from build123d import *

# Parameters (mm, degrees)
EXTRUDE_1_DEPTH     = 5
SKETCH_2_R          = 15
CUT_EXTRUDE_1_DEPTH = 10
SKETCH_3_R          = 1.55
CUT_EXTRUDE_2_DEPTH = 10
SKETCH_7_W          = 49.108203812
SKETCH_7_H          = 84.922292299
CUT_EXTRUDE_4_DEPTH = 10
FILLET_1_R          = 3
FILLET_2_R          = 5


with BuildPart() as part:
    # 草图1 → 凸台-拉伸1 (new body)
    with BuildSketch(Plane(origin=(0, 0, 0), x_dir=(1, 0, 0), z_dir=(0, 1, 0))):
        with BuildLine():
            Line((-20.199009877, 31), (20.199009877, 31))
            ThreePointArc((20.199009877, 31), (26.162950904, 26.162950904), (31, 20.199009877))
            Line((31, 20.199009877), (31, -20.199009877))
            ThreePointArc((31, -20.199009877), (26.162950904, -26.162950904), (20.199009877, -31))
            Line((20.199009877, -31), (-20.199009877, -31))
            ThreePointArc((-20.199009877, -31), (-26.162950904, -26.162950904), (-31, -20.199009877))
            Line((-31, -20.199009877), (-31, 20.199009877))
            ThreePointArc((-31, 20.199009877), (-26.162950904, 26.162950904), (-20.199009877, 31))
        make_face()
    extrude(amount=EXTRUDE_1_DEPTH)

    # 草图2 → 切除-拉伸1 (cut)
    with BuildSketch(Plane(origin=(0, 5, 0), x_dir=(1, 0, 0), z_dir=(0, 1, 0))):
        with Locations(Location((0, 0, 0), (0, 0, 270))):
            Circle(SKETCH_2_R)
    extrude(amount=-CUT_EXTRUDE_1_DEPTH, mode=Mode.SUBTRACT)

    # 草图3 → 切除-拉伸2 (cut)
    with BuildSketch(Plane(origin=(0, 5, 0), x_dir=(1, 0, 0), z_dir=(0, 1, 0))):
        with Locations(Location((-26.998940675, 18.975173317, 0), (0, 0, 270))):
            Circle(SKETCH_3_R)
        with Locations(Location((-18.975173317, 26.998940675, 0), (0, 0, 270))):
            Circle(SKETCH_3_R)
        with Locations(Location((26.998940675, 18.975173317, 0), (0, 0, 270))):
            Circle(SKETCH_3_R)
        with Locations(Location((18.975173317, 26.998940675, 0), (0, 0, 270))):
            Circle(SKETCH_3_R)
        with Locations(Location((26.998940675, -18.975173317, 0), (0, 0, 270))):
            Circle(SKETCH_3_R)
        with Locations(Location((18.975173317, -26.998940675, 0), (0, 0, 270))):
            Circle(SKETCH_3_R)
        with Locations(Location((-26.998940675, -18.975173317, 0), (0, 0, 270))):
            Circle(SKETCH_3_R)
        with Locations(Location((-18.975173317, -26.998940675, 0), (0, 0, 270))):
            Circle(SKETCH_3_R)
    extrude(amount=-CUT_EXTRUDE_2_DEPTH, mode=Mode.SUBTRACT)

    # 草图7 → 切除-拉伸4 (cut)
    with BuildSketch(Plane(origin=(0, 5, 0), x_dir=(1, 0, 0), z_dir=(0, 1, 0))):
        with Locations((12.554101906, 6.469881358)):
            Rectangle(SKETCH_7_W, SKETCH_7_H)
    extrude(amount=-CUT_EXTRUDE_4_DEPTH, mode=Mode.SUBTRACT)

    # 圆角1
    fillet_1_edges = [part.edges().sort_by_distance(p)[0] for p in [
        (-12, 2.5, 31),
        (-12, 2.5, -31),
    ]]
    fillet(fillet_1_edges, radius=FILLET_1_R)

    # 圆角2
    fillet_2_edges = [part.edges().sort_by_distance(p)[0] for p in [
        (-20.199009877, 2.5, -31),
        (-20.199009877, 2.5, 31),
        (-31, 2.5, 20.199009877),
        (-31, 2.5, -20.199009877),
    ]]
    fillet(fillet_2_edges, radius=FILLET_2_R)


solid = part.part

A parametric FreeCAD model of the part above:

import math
import FreeCAD as App
import Part
import Sketcher

V = App.Vector


def edges_at(feature, points):
    """Names of the edges that pass closest to the given points."""
    edges = feature.Shape.Edges
    near = lambda p: min(range(len(edges)), key=lambda i: edges[i].distToShape(Part.Vertex(*p))[0])
    return sorted({f"Edge{near(p) + 1}" for p in points})


def add_polygon(sketch, points):
    """Adds a closed chain of lines whose ends are joined by coincident constraints."""
    first, n = sketch.GeometryCount, len(points)
    for a, b in zip(points, points[1:] + points[:1]):
        sketch.addGeometry(Part.LineSegment(App.Vector(*a, 0), App.Vector(*b, 0)), False)
    for i in range(n):
        sketch.addConstraint(Sketcher.Constraint("Coincident", first + i, 2, first + (i + 1) % n, 1))

doc = App.newDocument("Part")
body = doc.addObject("PartDesign::Body", "Body")

# Sketch on XZ plane
sketch1 = doc.addObject("Sketcher::SketchObject", "Sketch")
body.addObject(sketch1)
sketch1.AttachmentSupport = (doc.XZ_Plane, [""])
sketch1.MapMode = "FlatFace"
sketch1.addGeometry(Part.LineSegment(V(20, -31, 0), V(-20, -31, 0)), False)
sketch1.addGeometry(Part.ArcOfCircle(Part.Circle(V(0, 0, 0), V(0, 0, 1), 37), math.radians(-147), math.radians(-123)), False)
sketch1.addGeometry(Part.LineSegment(V(-31, -20, 0), V(-31, 20, 0)), False)
sketch1.addGeometry(Part.ArcOfCircle(Part.Circle(V(0, 0, 0), V(0, 0, 1), 37), math.radians(123), math.radians(147)), False)
sketch1.addGeometry(Part.LineSegment(V(-20, 31, 0), V(20, 31, 0)), False)
sketch1.addGeometry(Part.ArcOfCircle(Part.Circle(V(0, 0, 0), V(0, 0, 1), 37), math.radians(33), math.radians(57)), False)
sketch1.addGeometry(Part.LineSegment(V(31, 20, 0), V(31, -20, 0)), False)
sketch1.addGeometry(Part.ArcOfCircle(Part.Circle(V(0, 0, 0), V(0, 0, 1), 37), math.radians(-57), math.radians(-33)), False)
sketch1.addConstraint(Sketcher.Constraint("Coincident", 0, 2, 1, 2))
sketch1.addConstraint(Sketcher.Constraint("Coincident", 1, 1, 2, 1))
sketch1.addConstraint(Sketcher.Constraint("Coincident", 2, 2, 3, 2))
sketch1.addConstraint(Sketcher.Constraint("Coincident", 3, 1, 4, 1))
sketch1.addConstraint(Sketcher.Constraint("Coincident", 4, 2, 5, 2))
sketch1.addConstraint(Sketcher.Constraint("Coincident", 5, 1, 6, 1))
sketch1.addConstraint(Sketcher.Constraint("Coincident", 6, 2, 7, 2))
sketch1.addConstraint(Sketcher.Constraint("Coincident", 7, 1, 0, 1))
sketch1.addConstraint(Sketcher.Constraint("Horizontal", 0))
sketch1.addConstraint(Sketcher.Constraint("Vertical", 2))
sketch1.addConstraint(Sketcher.Constraint("Horizontal", 4))
sketch1.addConstraint(Sketcher.Constraint("Vertical", 6))
sketch1.addConstraint(Sketcher.Constraint("Coincident", 1, 3, -1, 1))
sketch1.addConstraint(Sketcher.Constraint("Coincident", 3, 3, -1, 1))
sketch1.addConstraint(Sketcher.Constraint("Coincident", 5, 3, -1, 1))
sketch1.addConstraint(Sketcher.Constraint("Coincident", 7, 3, -1, 1))
sketch1.addConstraint(Sketcher.Constraint("Equal", 1, 3))
sketch1.addConstraint(Sketcher.Constraint("Equal", 3, 5))
sketch1.addConstraint(Sketcher.Constraint("Equal", 5, 7))
sketch1.addConstraint(Sketcher.Constraint("Horizontal", 2, 2, 5, 1))
sketch1.addConstraint(Sketcher.Constraint("Vertical", 0, 2, 3, 1))
sketch1.addConstraint(Sketcher.Constraint("Equal", 4, 2))
sketch1.addConstraint(Sketcher.Constraint("Radius", 1, 37.0))
sketch1.addConstraint(Sketcher.Constraint("DistanceY", 0, 2, -1, 1, 31.0))
pad1 = doc.addObject("PartDesign::Pad", "Pad")
body.addObject(pad1)
pad1.Profile = sketch1
pad1.Length = 5
pad1.Reversed = True

# Sketch on XZ plane
sketch2 = doc.addObject("Sketcher::SketchObject", "Sketch001")
body.addObject(sketch2)
sketch2.AttachmentSupport = (doc.XZ_Plane, [""])
sketch2.MapMode = "FlatFace"
sketch2.AttachmentOffset = App.Placement(V(0, 0, -5), App.Rotation())
sketch2.addGeometry(Part.Circle(V(0, 0, 0), V(0, 0, 1), 15), False)
sketch2.addConstraint(Sketcher.Constraint("Coincident", 0, 3, -1, 1))
sketch2.addConstraint(Sketcher.Constraint("Diameter", 0, 30.0))
pocket1 = doc.addObject("PartDesign::Pocket", "Pocket")
body.addObject(pocket1)
pocket1.Profile = sketch2
pocket1.Length = 10
pocket1.Reversed = True

# Sketch on XZ plane
sketch3 = doc.addObject("Sketcher::SketchObject", "Sketch002")
body.addObject(sketch3)
sketch3.AttachmentSupport = (doc.XZ_Plane, [""])
sketch3.MapMode = "FlatFace"
sketch3.AttachmentOffset = App.Placement(V(0, 0, -5), App.Rotation())
sketch3.addGeometry(Part.Circle(V(-27, -19, 0), V(0, 0, 1), 1.6), False)
sketch3.addGeometry(Part.Circle(V(-19, -27, 0), V(0, 0, 1), 1.6), False)
sketch3.addGeometry(Part.Circle(V(27, -19, 0), V(0, 0, 1), 1.6), False)
sketch3.addGeometry(Part.Circle(V(19, -27, 0), V(0, 0, 1), 1.6), False)
sketch3.addGeometry(Part.Circle(V(27, 19, 0), V(0, 0, 1), 1.6), False)
sketch3.addGeometry(Part.Circle(V(19, 27, 0), V(0, 0, 1), 1.6), False)
sketch3.addGeometry(Part.Circle(V(-27, 19, 0), V(0, 0, 1), 1.6), False)
sketch3.addGeometry(Part.Circle(V(-19, 27, 0), V(0, 0, 1), 1.6), False)
sketch3.addConstraint(Sketcher.Constraint("Equal", 0, 1))
sketch3.addConstraint(Sketcher.Constraint("Equal", 1, 2))
sketch3.addConstraint(Sketcher.Constraint("Equal", 2, 3))
sketch3.addConstraint(Sketcher.Constraint("Equal", 3, 4))
sketch3.addConstraint(Sketcher.Constraint("Equal", 4, 5))
sketch3.addConstraint(Sketcher.Constraint("Equal", 5, 6))
sketch3.addConstraint(Sketcher.Constraint("Equal", 6, 7))
sketch3.addConstraint(Sketcher.Constraint("Symmetric", 0, 3, 4, 3, -1, 1))
sketch3.addConstraint(Sketcher.Constraint("Symmetric", 1, 3, 5, 3, -1, 1))
sketch3.addConstraint(Sketcher.Constraint("Symmetric", 2, 3, 6, 3, -1, 1))
sketch3.addConstraint(Sketcher.Constraint("Symmetric", 3, 3, 7, 3, -1, 1))
sketch3.addConstraint(Sketcher.Constraint("Symmetric", 0, 3, 2, 3, -2))
sketch3.addConstraint(Sketcher.Constraint("Symmetric", 1, 3, 3, 3, -2))
sketch3.addConstraint(Sketcher.Constraint("Diameter", 0, 3.1))
sketch3.addConstraint(Sketcher.Constraint("DistanceX", 0, 3, -1, 1, 26.998941))
sketch3.addConstraint(Sketcher.Constraint("DistanceY", 1, 3, -1, 1, 26.998941))
sketch3.addConstraint(Sketcher.Constraint("DistanceY", 0, 3, -1, 1, 18.975173))
sketch3.addConstraint(Sketcher.Constraint("DistanceX", 1, 3, -1, 1, 18.975173))
pocket2 = doc.addObject("PartDesign::Pocket", "Pocket001")
body.addObject(pocket2)
pocket2.Profile = sketch3
pocket2.Length = 10
pocket2.Reversed = True

# Sketch on XZ plane
sketch4 = doc.addObject("Sketcher::SketchObject", "Sketch003")
body.addObject(sketch4)
sketch4.AttachmentSupport = (doc.XZ_Plane, [""])
sketch4.MapMode = "FlatFace"
sketch4.AttachmentOffset = App.Placement(V(0, 0, -5), App.Rotation())
add_polygon(sketch4, [(-12, -49), (-12, 36), (37, 36), (37, -49)])  # lines 0-3
sketch4.addConstraint(Sketcher.Constraint("Vertical", 0))
sketch4.addConstraint(Sketcher.Constraint("Horizontal", 1))
sketch4.addConstraint(Sketcher.Constraint("Vertical", 2))
sketch4.addConstraint(Sketcher.Constraint("Horizontal", 3))
sketch4.addConstraint(Sketcher.Constraint("DistanceX", 0, 2, -1, 1, 12.0))
sketch4.addConstraint(Sketcher.Constraint("DistanceX", 1, 1, 1, 2, 49.108204))
sketch4.addConstraint(Sketcher.Constraint("DistanceY", 0, 1, 0, 2, 84.922292))
sketch4.addConstraint(Sketcher.Constraint("DistanceY", -1, 1, 0, 2, 35.991265))
pocket3 = doc.addObject("PartDesign::Pocket", "Pocket002")
body.addObject(pocket3)
pocket3.Profile = sketch4
pocket3.Length = 10
pocket3.Reversed = True
doc.recompute()

fillet = doc.addObject("PartDesign::Fillet", "Fillet")
body.addObject(fillet)
fillet.Base = (pocket3, edges_at(pocket3, [(-12, 2.5, 31), (-12, 2.5, -31)]))
fillet.Radius = 3
doc.recompute()

fillet2 = doc.addObject("PartDesign::Fillet", "Fillet001")
body.addObject(fillet2)
fillet2.Base = (fillet, edges_at(fillet, [
    (-20.199, 2.5, -31),
    (-20.199, 2.5, 31),
    (-31, 2.5, 20.199),
    (-31, 2.5, -20.199),
]))
fillet2.Radius = 5

doc.recompute()
